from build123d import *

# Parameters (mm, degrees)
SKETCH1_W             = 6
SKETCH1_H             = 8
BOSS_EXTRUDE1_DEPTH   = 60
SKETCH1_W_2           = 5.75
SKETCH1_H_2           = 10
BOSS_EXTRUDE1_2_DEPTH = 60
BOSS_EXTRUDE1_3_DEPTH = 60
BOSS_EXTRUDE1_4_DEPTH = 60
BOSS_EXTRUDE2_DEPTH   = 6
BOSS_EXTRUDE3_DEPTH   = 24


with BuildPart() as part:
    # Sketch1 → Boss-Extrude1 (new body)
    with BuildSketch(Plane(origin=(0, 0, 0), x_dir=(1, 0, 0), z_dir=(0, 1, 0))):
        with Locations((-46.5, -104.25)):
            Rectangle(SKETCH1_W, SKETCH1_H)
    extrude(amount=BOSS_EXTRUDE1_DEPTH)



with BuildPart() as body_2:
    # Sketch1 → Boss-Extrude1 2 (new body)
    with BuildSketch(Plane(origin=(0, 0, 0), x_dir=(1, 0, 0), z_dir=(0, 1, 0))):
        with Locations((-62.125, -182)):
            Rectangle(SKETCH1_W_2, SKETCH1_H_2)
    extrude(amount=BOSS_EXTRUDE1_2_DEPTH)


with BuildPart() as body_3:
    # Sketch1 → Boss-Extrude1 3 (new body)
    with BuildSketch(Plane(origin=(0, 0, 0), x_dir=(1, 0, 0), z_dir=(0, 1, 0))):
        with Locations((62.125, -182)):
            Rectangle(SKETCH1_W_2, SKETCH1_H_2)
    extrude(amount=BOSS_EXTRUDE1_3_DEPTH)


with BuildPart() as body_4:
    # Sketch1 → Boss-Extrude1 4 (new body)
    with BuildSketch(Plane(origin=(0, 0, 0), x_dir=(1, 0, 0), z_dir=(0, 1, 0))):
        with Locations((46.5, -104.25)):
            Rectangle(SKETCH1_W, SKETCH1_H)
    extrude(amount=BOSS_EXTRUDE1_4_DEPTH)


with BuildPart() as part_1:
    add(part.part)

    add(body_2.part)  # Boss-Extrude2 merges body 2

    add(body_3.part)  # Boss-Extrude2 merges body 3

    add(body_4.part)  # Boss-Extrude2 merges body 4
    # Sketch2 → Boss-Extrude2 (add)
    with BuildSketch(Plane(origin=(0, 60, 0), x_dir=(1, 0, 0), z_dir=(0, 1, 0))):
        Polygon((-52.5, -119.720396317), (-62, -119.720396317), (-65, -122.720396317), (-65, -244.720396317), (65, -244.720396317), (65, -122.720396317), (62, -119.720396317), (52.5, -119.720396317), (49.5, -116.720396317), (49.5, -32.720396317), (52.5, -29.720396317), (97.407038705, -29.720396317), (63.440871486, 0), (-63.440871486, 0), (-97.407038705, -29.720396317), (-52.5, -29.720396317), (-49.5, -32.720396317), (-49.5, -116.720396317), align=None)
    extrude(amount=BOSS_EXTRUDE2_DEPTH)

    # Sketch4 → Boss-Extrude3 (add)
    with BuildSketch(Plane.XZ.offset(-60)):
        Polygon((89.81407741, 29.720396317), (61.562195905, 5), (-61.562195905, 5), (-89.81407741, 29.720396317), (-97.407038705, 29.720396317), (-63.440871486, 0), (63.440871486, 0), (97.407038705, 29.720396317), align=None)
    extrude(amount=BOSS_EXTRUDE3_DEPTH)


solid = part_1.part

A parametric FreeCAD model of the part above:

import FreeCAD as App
import Part
import Sketcher
from FreeCAD import Vector

doc = App.newDocument("Part")
body = doc.addObject("PartDesign::Body", "Body")

sketch1 = body.newObject("Sketcher::SketchObject", "Sketch")
sketch1.AttachmentSupport = (doc.getObject("XZ_Plane"), [""])
sketch1.MapMode = "FlatFace"
sketch1.addGeometry([
    Part.LineSegment(Vector(-50, 100, 0), Vector(-50, 108, 0)),
    Part.LineSegment(Vector(-50, 108, 0), Vector(-44, 108, 0)),
    Part.LineSegment(Vector(-44, 108, 0), Vector(-44, 100, 0)),
    Part.LineSegment(Vector(-44, 100, 0), Vector(-50, 100, 0)),
], False)
sketch1.addConstraint([
    Sketcher.Constraint("Coincident", 0, 2, 1, 1),
    Sketcher.Constraint("Coincident", 1, 2, 2, 1),
    Sketcher.Constraint("Coincident", 2, 2, 3, 1),
    Sketcher.Constraint("Coincident", 3, 2, 0, 1),
    Sketcher.Constraint("Vertical", 0),
    Sketcher.Constraint("Horizontal", 1),
    Sketcher.Constraint("Vertical", 2),
    Sketcher.Constraint("Horizontal", 3),
    Sketcher.Constraint("DistanceX", 1, 1, 1, 2, 6.0),
    Sketcher.Constraint("DistanceY", 0, 1, 0, 2, 8.0),
    Sketcher.Constraint("DistanceX", 0, 2, -1, 1, 49.5),
    Sketcher.Constraint("DistanceY", -1, 1, 0, 2, 108.25),
])
pad1 = body.newObject("PartDesign::Pad", "Pad")
pad1.Profile = sketch1
pad1.Length = 60
pad1.Reversed = True
body2 = doc.addObject("PartDesign::Body", "Body001")

sketch2 = body2.newObject("Sketcher::SketchObject", "Sketch001")
sketch2.AttachmentSupport = (doc.getObject("XZ_Plane001"), [""])
sketch2.MapMode = "FlatFace"
sketch2.addGeometry([
    Part.LineSegment(Vector(-65, 177, 0), Vector(-65, 187, 0)),
    Part.LineSegment(Vector(-65, 187, 0), Vector(-59, 187, 0)),
    Part.LineSegment(Vector(-59, 187, 0), Vector(-59, 177, 0)),
    Part.LineSegment(Vector(-59, 177, 0), Vector(-65, 177, 0)),
], False)
sketch2.addConstraint([
    Sketcher.Constraint("Coincident", 0, 2, 1, 1),
    Sketcher.Constraint("Coincident", 1, 2, 2, 1),
    Sketcher.Constraint("Coincident", 2, 2, 3, 1),
    Sketcher.Constraint("Coincident", 3, 2, 0, 1),
    Sketcher.Constraint("Vertical", 0),
    Sketcher.Constraint("Horizontal", 1),
    Sketcher.Constraint("Vertical", 2),
    Sketcher.Constraint("Horizontal", 3),
    Sketcher.Constraint("DistanceY", 0, 1, 0, 2, 10.0),
    Sketcher.Constraint("DistanceX", 0, 2, -1, 1, 65.0),
    Sketcher.Constraint("DistanceY", -1, 1, 0, 2, 187.0),
    Sketcher.Constraint("DistanceX", 1, 1, 1, 2, 5.75),
])
pad2 = body2.newObject("PartDesign::Pad", "Pad001")
pad2.Profile = sketch2
pad2.Length = 60
pad2.Reversed = True
body3 = doc.addObject("PartDesign::Body", "Body002")

sketch3 = body3.newObject("Sketcher::SketchObject", "Sketch002")
sketch3.AttachmentSupport = (doc.getObject("XZ_Plane002"), [""])
sketch3.MapMode = "FlatFace"
sketch3.addGeometry([
    Part.LineSegment(Vector(59, 177, 0), Vector(59, 187, 0)),
    Part.LineSegment(Vector(59, 187, 0), Vector(65, 187, 0)),
    Part.LineSegment(Vector(65, 187, 0), Vector(65, 177, 0)),
    Part.LineSegment(Vector(65, 177, 0), Vector(59, 177, 0)),
], False)
sketch3.addConstraint([
    Sketcher.Constraint("Coincident", 0, 2, 1, 1),
    Sketcher.Constraint("Coincident", 1, 2, 2, 1),
    Sketcher.Constraint("Coincident", 2, 2, 3, 1),
    Sketcher.Constraint("Coincident", 3, 2, 0, 1),
    Sketcher.Constraint("Vertical", 0),
    Sketcher.Constraint("Horizontal", 1),
    Sketcher.Constraint("Vertical", 2),
    Sketcher.Constraint("Horizontal", 3),
    Sketcher.Constraint("DistanceY", 0, 1, 0, 2, 10.0),
    Sketcher.Constraint("DistanceY", -1, 1, 0, 2, 187.0),
    Sketcher.Constraint("DistanceX", -1, 1, 1, 2, 65.0),
    Sketcher.Constraint("DistanceX", 1, 1, 1, 2, 5.75),
])
pad3 = body3.newObject("PartDesign::Pad", "Pad002")
pad3.Profile = sketch3
pad3.Length = 60
pad3.Reversed = True
body4 = doc.addObject("PartDesign::Body", "Body003")

sketch4 = body4.newObject("Sketcher::SketchObject", "Sketch003")
sketch4.AttachmentSupport = (doc.getObject("XZ_Plane003"), [""])
sketch4.MapMode = "FlatFace"
sketch4.addGeometry([
    Part.LineSegment(Vector(44, 100, 0), Vector(44, 108, 0)),
    Part.LineSegment(Vector(44, 108, 0), Vector(50, 108, 0)),
    Part.LineSegment(Vector(50, 108, 0), Vector(50, 100, 0)),
    Part.LineSegment(Vector(50, 100, 0), Vector(44, 100, 0)),
], False)
sketch4.addConstraint([
    Sketcher.Constraint("Coincident", 0, 2, 1, 1),
    Sketcher.Constraint("Coincident", 1, 2, 2, 1),
    Sketcher.Constraint("Coincident", 2, 2, 3, 1),
    Sketcher.Constraint("Coincident", 3, 2, 0, 1),
    Sketcher.Constraint("Vertical", 0),
    Sketcher.Constraint("Horizontal", 1),
    Sketcher.Constraint("Vertical", 2),
    Sketcher.Constraint("Horizontal", 3),
    Sketcher.Constraint("DistanceX", 1, 1, 1, 2, 6.0),
    Sketcher.Constraint("DistanceY", 0, 1, 0, 2, 8.0),
    Sketcher.Constraint("DistanceX", -1, 1, 0, 2, 43.5),
    Sketcher.Constraint("DistanceY", -1, 1, 0, 2, 108.25),
])
pad4 = body4.newObject("PartDesign::Pad", "Pad003")
pad4.Profile = sketch4
pad4.Length = 60
pad4.Reversed = True
body.AllowCompound = True
doc.recompute()

boolean = body.newObject("PartDesign::Boolean", "Boolean")
boolean.Type = "Fuse"
boolean.addObjects([body2])
doc.recompute()

boolean2 = body.newObject("PartDesign::Boolean", "Boolean001")
boolean2.Type = "Fuse"
boolean2.addObjects([body3])
doc.recompute()

boolean3 = body.newObject("PartDesign::Boolean", "Boolean002")
boolean3.Type = "Fuse"
boolean3.addObjects([body4])

sketch5 = body.newObject("Sketcher::SketchObject", "Sketch004")
sketch5.AttachmentSupport = (doc.getObject("XZ_Plane"), [""])
sketch5.MapMode = "FlatFace"
sketch5.AttachmentOffset = App.Placement(Vector(0, 0, -60), App.Rotation())
sketch5.addGeometry([
    Part.LineSegment(Vector(-52.5, 119.7, 0), Vector(-62, 119.7, 0)),
    Part.LineSegment(Vector(-62, 119.7, 0), Vector(-65, 122.7, 0)),
    Part.LineSegment(Vector(-65, 122.7, 0), Vector(-65, 244.7, 0)),
    Part.LineSegment(Vector(-65, 244.7, 0), Vector(65, 244.7, 0)),
    Part.LineSegment(Vector(65, 244.7, 0), Vector(65, 122.7, 0)),
    Part.LineSegment(Vector(65, 122.7, 0), Vector(62, 119.7, 0)),
    Part.LineSegment(Vector(62, 119.7, 0), Vector(52.5, 119.7, 0)),
    Part.LineSegment(Vector(52.5, 119.7, 0), Vector(49.5, 116.7, 0)),
    Part.LineSegment(Vector(49.5, 116.7, 0), Vector(49.5, 32.7, 0)),
    Part.LineSegment(Vector(49.5, 32.7, 0), Vector(52.5, 29.7, 0)),
    Part.LineSegment(Vector(52.5, 29.7, 0), Vector(97.4, 29.7, 0)),
    Part.LineSegment(Vector(97.4, 29.7, 0), Vector(63.4, 0, 0)),
    Part.LineSegment(Vector(63.4, 0, 0), Vector(-63.4, 0, 0)),
    Part.LineSegment(Vector(-63.4, 0, 0), Vector(-97.4, 29.7, 0)),
    Part.LineSegment(Vector(-97.4, 29.7, 0), Vector(-52.5, 29.7, 0)),
    Part.LineSegment(Vector(-52.5, 29.7, 0), Vector(-49.5, 32.7, 0)),
    Part.LineSegment(Vector(-49.5, 32.7, 0), Vector(-49.5, 116.7, 0)),
    Part.LineSegment(Vector(-49.5, 116.7, 0), Vector(-52.5, 119.7, 0)),
], False)
sketch5.addConstraint([
    Sketcher.Constraint("Coincident", 0, 2, 1, 1),
    Sketcher.Constraint("Coincident", 1, 2, 2, 1),
    Sketcher.Constraint("Coincident", 2, 2, 3, 1),
    Sketcher.Constraint("Coincident", 3, 2, 4, 1),
    Sketcher.Constraint("Coincident", 4, 2, 5, 1),
    Sketcher.Constraint("Coincident", 5, 2, 6, 1),
    Sketcher.Constraint("Coincident", 6, 2, 7, 1),
    Sketcher.Constraint("Coincident", 7, 2, 8, 1),
    Sketcher.Constraint("Coincident", 8, 2, 9, 1),
    Sketcher.Constraint("Coincident", 9, 2, 10, 1),
    Sketcher.Constraint("Coincident", 10, 2, 11, 1),
    Sketcher.Constraint("Coincident", 11, 2, 12, 1),
    Sketcher.Constraint("Coincident", 12, 2, 13, 1),
    Sketcher.Constraint("Coincident", 13, 2, 14, 1),
    Sketcher.Constraint("Coincident", 14, 2, 15, 1),
    Sketcher.Constraint("Coincident", 15, 2, 16, 1),
    Sketcher.Constraint("Coincident", 16, 2, 17, 1),
    Sketcher.Constraint("Coincident", 17, 2, 0, 1),
    Sketcher.Constraint("Horizontal", 0),
    Sketcher.Constraint("Vertical", 2),
    Sketcher.Constraint("Horizontal", 3),
    Sketcher.Constraint("Vertical", 4),
    Sketcher.Constraint("Horizontal", 6),
    Sketcher.Constraint("Vertical", 8),
    Sketcher.Constraint("Horizontal", 10),
    Sketcher.Constraint("Horizontal", 12),
    Sketcher.Constraint("Horizontal", 14),
    Sketcher.Constraint("Vertical", 16),
    Sketcher.Constraint("Symmetric", 11, 2, 12, 2, -1, 1),
    Sketcher.Constraint("Symmetric", 1, 2, 4, 2, -2),
    Sketcher.Constraint("Symmetric", 0, 2, 5, 2, -2),
    Sketcher.Constraint("Symmetric", 10, 2, 13, 2, -2),
    Sketcher.Constraint("Symmetric", 8, 2, 15, 2, -2),
    Sketcher.Constraint("Perpendicular", 1, 5),
    Sketcher.Constraint("Parallel", 5, 7),
    Sketcher.Constraint("Perpendicular", 7, 9),
    Sketcher.Constraint("Perpendicular", 9, 15),
    Sketcher.Constraint("Perpendicular", 15, 17),
    Sketcher.Constraint("Horizontal", 7, 2, 16, 2),
    Sketcher.Constraint("Vertical", 6, 2, 9, 2),
    Sketcher.Constraint("Equal", 5, 7),
    Sketcher.Constraint("DistanceX", 3, 1, 3, 2, 130.0),
    Sketcher.Constraint("DistanceY", 2, 1, 2, 2, 122.0),
    Sketcher.Constraint("DistanceY", 8, 2, 8, 1, 84.0),
    Sketcher.Constraint("DistanceX", 0, 2, 0, 1, 9.5),
    Sketcher.Constraint("DistanceX", 0, 2, -1, 1, 62.0),
    Sketcher.Constraint("DistanceX", 10, 1, 10, 2, 44.907039),
    Sketcher.Constraint("DistanceX", 12, 2, 12, 1, 126.881743),
    Sketcher.Constraint("Distance", 11, 45.133164),
])
pad5 = body.newObject("PartDesign::Pad", "Pad004")
pad5.Profile = sketch5
pad5.Length = 6
pad5.Reversed = True

sketch6 = body.newObject("Sketcher::SketchObject", "Sketch005")
sketch6.AttachmentSupport = (doc.getObject("XZ_Plane"), [""])
sketch6.MapMode = "FlatFace"
sketch6.AttachmentOffset = App.Placement(Vector(0, 0, -60), App.Rotation())
sketch6.addGeometry([
    Part.LineSegment(Vector(90, 30, 0), Vector(62, 5, 0)),
    Part.LineSegment(Vector(62, 5, 0), Vector(-62, 5, 0)),
    Part.LineSegment(Vector(-62, 5, 0), Vector(-90, 30, 0)),
    Part.LineSegment(Vector(-90, 30, 0), Vector(-97, 30, 0)),
    Part.LineSegment(Vector(-97, 30, 0), Vector(-63, 0, 0)),
    Part.LineSegment(Vector(-63, 0, 0), Vector(63, 0, 0)),
    Part.LineSegment(Vector(63, 0, 0), Vector(97, 30, 0)),
    Part.LineSegment(Vector(97, 30, 0), Vector(90, 30, 0)),
], False)
sketch6.addConstraint([
    Sketcher.Constraint("Coincident", 0, 2, 1, 1),
    Sketcher.Constraint("Coincident", 1, 2, 2, 1),
    Sketcher.Constraint("Coincident", 2, 2, 3, 1),
    Sketcher.Constraint("Coincident", 3, 2, 4, 1),
    Sketcher.Constraint("Coincident", 4, 2, 5, 1),
    Sketcher.Constraint("Coincident", 5, 2, 6, 1),
    Sketcher.Constraint("Coincident", 6, 2, 7, 1),
    Sketcher.Constraint("Coincident", 7, 2, 0, 1),
    Sketcher.Constraint("Horizontal", 1),
    Sketcher.Constraint("Horizontal", 3),
    Sketcher.Constraint("Horizontal", 5),
    Sketcher.Constraint("Horizontal", 7),
    Sketcher.Constraint("Symmetric", 4, 2, 5, 2, -1, 1),
    Sketcher.Constraint("Symmetric", 3, 2, 6, 2, -2),
    Sketcher.Constraint("Parallel", 2, 4),
    Sketcher.Constraint("Parallel", 0, 6),
    Sketcher.Constraint("Equal", 3, 7),
    Sketcher.Constraint("DistanceY", -1, 1, 0, 2, 5.0),
    Sketcher.Constraint("DistanceX", 1, 2, 1, 1, 123.124392),
    Sketcher.Constraint("DistanceX", 3, 2, 3, 1, 7.592961),
    Sketcher.Constraint("DistanceX", 5, 1, 5, 2, 126.881743),
    Sketcher.Constraint("DistanceX", 3, 2, -1, 1, 97.407039),
])
pad6 = body.newObject("PartDesign::Pad", "Pad005")
pad6.Profile = sketch6
pad6.Length = 24

doc.recompute()
